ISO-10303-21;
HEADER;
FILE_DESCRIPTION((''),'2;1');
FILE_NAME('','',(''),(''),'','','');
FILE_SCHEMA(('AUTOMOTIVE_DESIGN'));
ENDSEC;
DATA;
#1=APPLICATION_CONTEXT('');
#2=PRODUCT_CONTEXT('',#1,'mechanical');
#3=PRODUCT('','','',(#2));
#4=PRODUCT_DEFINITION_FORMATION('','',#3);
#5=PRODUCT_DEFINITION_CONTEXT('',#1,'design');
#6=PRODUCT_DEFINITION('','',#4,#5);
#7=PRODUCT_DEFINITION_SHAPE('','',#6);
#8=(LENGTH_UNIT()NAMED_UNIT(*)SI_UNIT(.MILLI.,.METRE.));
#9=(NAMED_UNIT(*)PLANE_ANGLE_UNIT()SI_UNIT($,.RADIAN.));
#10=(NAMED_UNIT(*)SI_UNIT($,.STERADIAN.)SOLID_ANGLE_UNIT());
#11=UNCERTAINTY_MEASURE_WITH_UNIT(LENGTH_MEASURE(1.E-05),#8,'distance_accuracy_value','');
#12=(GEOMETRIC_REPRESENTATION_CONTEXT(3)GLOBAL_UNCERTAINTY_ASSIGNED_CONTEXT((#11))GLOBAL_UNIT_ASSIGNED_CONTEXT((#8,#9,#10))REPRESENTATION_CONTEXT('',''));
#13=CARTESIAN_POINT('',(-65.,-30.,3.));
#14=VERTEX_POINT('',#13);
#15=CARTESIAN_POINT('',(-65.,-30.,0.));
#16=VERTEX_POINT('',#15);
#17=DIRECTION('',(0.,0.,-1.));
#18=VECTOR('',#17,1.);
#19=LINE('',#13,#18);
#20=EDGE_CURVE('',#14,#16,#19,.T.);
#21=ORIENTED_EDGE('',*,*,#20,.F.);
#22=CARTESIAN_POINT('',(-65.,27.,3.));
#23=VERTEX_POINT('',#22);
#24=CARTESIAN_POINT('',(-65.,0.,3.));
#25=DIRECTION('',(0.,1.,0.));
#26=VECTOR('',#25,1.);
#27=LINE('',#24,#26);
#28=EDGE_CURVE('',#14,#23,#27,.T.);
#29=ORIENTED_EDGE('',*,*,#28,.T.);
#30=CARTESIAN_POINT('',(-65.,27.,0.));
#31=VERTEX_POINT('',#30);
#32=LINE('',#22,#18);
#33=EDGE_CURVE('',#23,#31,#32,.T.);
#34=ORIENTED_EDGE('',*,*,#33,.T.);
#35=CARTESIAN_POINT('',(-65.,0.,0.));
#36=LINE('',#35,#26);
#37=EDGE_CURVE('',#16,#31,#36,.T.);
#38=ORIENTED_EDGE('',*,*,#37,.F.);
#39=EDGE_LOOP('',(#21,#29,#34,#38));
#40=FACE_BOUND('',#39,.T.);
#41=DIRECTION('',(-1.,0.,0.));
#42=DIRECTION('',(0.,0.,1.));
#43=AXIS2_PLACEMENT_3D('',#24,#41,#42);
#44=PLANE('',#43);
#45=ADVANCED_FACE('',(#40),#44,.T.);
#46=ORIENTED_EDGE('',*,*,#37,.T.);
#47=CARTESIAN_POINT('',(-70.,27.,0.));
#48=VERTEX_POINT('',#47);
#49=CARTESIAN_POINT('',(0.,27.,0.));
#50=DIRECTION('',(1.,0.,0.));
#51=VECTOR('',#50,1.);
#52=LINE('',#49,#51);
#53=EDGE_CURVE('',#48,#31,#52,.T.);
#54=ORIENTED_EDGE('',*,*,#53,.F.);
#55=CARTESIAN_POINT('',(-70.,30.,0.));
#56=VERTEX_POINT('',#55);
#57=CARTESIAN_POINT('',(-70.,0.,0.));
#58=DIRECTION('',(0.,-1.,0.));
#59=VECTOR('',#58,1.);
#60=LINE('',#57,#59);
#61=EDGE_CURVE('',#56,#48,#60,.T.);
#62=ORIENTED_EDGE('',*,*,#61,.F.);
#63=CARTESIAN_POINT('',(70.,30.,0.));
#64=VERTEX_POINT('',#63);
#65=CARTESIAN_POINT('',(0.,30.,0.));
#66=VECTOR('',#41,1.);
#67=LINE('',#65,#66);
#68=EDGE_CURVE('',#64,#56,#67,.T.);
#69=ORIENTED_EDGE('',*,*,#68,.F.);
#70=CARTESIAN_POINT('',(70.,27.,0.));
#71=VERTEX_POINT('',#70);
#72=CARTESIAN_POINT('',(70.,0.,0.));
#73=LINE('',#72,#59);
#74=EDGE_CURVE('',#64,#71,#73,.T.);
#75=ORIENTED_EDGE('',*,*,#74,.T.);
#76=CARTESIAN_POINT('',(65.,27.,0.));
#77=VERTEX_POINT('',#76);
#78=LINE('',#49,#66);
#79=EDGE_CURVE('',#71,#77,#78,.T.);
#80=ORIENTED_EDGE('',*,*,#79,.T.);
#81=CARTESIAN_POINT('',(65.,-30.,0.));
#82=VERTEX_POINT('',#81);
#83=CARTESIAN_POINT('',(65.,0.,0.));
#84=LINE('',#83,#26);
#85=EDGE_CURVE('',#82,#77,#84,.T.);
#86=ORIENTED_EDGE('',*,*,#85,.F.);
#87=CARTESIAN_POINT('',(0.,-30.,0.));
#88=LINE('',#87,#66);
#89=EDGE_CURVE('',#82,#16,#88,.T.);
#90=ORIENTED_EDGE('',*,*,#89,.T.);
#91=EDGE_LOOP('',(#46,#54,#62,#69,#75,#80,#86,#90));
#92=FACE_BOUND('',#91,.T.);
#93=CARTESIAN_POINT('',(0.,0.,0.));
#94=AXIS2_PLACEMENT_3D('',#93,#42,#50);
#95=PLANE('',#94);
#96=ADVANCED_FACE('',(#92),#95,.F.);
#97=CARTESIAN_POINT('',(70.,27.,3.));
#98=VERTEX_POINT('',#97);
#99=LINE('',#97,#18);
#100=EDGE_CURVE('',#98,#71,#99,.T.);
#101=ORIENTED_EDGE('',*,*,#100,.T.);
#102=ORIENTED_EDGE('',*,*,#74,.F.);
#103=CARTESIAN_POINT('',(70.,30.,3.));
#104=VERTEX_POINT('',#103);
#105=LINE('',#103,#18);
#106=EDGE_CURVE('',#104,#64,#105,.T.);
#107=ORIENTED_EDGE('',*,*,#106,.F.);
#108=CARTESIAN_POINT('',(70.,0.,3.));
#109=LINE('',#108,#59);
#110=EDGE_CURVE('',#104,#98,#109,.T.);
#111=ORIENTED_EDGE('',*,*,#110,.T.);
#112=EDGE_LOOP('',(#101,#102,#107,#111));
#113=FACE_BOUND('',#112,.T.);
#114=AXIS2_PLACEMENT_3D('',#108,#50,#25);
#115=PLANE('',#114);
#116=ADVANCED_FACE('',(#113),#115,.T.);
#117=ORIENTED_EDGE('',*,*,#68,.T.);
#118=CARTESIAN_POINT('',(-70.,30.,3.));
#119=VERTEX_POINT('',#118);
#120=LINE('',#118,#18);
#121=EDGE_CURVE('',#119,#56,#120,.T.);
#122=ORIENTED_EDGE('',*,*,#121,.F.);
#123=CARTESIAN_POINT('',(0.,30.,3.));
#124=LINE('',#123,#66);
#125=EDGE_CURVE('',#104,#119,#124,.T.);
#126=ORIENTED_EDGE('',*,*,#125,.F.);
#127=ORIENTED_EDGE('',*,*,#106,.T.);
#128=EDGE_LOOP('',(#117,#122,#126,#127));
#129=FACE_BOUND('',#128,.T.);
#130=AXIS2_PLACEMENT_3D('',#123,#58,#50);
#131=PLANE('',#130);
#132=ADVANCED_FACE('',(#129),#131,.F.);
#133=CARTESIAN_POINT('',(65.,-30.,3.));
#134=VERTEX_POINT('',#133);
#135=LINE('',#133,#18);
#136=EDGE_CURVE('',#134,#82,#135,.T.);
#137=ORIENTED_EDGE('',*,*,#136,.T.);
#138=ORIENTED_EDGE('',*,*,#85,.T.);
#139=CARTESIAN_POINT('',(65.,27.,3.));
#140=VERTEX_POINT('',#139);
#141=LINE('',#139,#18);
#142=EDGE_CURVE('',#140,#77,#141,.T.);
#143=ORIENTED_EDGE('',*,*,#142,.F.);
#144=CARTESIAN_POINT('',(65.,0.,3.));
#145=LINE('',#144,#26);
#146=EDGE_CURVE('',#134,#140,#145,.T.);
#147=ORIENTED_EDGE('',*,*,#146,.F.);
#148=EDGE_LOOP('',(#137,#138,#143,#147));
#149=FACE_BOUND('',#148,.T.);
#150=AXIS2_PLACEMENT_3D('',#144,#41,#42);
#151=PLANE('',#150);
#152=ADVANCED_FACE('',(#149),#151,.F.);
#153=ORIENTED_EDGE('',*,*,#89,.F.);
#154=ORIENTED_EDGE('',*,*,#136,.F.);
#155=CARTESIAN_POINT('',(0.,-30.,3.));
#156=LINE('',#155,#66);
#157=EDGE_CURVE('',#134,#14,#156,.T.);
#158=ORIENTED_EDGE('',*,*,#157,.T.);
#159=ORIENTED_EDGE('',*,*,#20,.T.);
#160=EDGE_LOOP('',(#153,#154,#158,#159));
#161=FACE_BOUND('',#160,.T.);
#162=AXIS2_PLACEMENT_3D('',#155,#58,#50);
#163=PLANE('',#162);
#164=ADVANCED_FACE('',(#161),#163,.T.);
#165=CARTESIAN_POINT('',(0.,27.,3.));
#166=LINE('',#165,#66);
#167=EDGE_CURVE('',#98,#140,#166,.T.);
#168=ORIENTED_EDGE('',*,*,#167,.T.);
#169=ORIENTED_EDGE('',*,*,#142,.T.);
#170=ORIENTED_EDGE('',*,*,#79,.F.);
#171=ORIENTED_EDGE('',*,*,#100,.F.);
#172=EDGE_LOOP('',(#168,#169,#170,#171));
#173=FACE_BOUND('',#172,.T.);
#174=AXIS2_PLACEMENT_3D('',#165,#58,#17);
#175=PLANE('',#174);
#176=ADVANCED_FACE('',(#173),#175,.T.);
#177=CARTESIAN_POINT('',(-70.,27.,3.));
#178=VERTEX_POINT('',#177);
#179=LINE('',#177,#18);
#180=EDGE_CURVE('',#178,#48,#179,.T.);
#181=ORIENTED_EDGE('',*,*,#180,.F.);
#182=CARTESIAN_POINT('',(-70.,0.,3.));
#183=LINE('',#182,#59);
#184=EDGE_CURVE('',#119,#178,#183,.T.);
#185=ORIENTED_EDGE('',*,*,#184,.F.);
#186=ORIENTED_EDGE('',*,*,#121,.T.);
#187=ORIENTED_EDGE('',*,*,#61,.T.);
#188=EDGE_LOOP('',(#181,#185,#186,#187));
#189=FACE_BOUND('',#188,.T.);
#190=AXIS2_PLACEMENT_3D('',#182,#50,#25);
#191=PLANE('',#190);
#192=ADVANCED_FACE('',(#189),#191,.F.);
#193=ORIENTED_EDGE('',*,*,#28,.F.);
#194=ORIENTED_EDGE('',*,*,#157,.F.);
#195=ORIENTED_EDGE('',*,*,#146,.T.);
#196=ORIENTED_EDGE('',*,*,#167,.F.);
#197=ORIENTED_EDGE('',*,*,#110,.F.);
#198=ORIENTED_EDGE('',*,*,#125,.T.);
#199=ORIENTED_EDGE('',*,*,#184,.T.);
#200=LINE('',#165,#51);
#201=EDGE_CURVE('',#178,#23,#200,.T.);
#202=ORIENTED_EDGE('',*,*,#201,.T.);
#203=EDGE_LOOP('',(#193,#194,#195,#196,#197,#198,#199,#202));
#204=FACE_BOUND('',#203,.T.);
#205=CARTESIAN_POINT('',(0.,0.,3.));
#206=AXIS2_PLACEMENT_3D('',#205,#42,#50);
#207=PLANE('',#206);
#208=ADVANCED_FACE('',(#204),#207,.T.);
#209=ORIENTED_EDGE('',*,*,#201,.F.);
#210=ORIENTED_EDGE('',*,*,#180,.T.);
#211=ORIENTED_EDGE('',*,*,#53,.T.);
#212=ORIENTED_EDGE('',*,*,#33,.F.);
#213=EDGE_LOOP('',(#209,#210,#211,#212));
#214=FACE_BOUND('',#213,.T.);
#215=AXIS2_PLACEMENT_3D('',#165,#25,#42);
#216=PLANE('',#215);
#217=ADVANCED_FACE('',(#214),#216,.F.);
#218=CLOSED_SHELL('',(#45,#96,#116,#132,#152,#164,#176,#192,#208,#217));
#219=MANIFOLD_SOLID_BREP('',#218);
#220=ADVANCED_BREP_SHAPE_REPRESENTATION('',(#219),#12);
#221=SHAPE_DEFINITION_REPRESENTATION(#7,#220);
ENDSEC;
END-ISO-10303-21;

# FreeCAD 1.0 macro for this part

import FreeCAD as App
import Part
import Sketcher
from FreeCAD import Vector

doc = App.newDocument("Part")
body = doc.addObject("PartDesign::Body", "Body")

# Sketch on XY plane
sketch1 = doc.addObject("Sketcher::SketchObject", "Sketch")
body.addObject(sketch1)
sketch1.AttachmentSupport = (doc.XY_Plane, [""])
sketch1.MapMode = "FlatFace"
sketch1.addGeometry([
    Part.LineSegment(Vector(-65, 27, 0), Vector(-65, -30, 0)),  # 0
    Part.LineSegment(Vector(-65, -30, 0), Vector(65, -30, 0)),  # 1
    Part.LineSegment(Vector(65, -30, 0), Vector(65, 27, 0)),  # 2
    Part.LineSegment(Vector(65, 27, 0), Vector(70, 27, 0)),  # 3
    Part.LineSegment(Vector(70, 27, 0), Vector(70, 30, 0)),  # 4
    Part.LineSegment(Vector(70, 30, 0), Vector(-70, 30, 0)),  # 5
    Part.LineSegment(Vector(-70, 30, 0), Vector(-70, 27, 0)),  # 6
    Part.LineSegment(Vector(-70, 27, 0), Vector(-65, 27, 0)),  # 7
], False)
sketch1.addConstraint([
    Sketcher.Constraint("Coincident", 0, 2, 1, 1),
    Sketcher.Constraint("Coincident", 1, 2, 2, 1),
    Sketcher.Constraint("Coincident", 2, 2, 3, 1),
    Sketcher.Constraint("Coincident", 3, 2, 4, 1),
    Sketcher.Constraint("Coincident", 4, 2, 5, 1),
    Sketcher.Constraint("Coincident", 5, 2, 6, 1),
    Sketcher.Constraint("Coincident", 6, 2, 7, 1),
    Sketcher.Constraint("Coincident", 7, 2, 0, 1),
    Sketcher.Constraint("Vertical", 0),
    Sketcher.Constraint("Horizontal", 1),
    Sketcher.Constraint("Vertical", 2),
    Sketcher.Constraint("Horizontal", 3),
    Sketcher.Constraint("Vertical", 4),
    Sketcher.Constraint("Horizontal", 5),
    Sketcher.Constraint("Vertical", 6),
    Sketcher.Constraint("Horizontal", 7),
    Sketcher.Constraint("Symmetric", 3, 2, 6, 2, -2),
    Sketcher.Constraint("Equal", 3, 7),
    Sketcher.Constraint("DistanceX", 1, 1, 1, 2, 130.0),
    Sketcher.Constraint("DistanceX", 3, 1, 3, 2, 5.0),
    Sketcher.Constraint("DistanceY", 0, 2, 0, 1, 57.0),
    Sketcher.Constraint("DistanceY", 4, 1, 4, 2, 3.0),
    Sketcher.Constraint("DistanceY", 0, 2, -1, 1, 30.0),
])
pad1 = doc.addObject("PartDesign::Pad", "Pad")
body.addObject(pad1)
pad1.Profile = sketch1
pad1.Length = 3

doc.recompute()
